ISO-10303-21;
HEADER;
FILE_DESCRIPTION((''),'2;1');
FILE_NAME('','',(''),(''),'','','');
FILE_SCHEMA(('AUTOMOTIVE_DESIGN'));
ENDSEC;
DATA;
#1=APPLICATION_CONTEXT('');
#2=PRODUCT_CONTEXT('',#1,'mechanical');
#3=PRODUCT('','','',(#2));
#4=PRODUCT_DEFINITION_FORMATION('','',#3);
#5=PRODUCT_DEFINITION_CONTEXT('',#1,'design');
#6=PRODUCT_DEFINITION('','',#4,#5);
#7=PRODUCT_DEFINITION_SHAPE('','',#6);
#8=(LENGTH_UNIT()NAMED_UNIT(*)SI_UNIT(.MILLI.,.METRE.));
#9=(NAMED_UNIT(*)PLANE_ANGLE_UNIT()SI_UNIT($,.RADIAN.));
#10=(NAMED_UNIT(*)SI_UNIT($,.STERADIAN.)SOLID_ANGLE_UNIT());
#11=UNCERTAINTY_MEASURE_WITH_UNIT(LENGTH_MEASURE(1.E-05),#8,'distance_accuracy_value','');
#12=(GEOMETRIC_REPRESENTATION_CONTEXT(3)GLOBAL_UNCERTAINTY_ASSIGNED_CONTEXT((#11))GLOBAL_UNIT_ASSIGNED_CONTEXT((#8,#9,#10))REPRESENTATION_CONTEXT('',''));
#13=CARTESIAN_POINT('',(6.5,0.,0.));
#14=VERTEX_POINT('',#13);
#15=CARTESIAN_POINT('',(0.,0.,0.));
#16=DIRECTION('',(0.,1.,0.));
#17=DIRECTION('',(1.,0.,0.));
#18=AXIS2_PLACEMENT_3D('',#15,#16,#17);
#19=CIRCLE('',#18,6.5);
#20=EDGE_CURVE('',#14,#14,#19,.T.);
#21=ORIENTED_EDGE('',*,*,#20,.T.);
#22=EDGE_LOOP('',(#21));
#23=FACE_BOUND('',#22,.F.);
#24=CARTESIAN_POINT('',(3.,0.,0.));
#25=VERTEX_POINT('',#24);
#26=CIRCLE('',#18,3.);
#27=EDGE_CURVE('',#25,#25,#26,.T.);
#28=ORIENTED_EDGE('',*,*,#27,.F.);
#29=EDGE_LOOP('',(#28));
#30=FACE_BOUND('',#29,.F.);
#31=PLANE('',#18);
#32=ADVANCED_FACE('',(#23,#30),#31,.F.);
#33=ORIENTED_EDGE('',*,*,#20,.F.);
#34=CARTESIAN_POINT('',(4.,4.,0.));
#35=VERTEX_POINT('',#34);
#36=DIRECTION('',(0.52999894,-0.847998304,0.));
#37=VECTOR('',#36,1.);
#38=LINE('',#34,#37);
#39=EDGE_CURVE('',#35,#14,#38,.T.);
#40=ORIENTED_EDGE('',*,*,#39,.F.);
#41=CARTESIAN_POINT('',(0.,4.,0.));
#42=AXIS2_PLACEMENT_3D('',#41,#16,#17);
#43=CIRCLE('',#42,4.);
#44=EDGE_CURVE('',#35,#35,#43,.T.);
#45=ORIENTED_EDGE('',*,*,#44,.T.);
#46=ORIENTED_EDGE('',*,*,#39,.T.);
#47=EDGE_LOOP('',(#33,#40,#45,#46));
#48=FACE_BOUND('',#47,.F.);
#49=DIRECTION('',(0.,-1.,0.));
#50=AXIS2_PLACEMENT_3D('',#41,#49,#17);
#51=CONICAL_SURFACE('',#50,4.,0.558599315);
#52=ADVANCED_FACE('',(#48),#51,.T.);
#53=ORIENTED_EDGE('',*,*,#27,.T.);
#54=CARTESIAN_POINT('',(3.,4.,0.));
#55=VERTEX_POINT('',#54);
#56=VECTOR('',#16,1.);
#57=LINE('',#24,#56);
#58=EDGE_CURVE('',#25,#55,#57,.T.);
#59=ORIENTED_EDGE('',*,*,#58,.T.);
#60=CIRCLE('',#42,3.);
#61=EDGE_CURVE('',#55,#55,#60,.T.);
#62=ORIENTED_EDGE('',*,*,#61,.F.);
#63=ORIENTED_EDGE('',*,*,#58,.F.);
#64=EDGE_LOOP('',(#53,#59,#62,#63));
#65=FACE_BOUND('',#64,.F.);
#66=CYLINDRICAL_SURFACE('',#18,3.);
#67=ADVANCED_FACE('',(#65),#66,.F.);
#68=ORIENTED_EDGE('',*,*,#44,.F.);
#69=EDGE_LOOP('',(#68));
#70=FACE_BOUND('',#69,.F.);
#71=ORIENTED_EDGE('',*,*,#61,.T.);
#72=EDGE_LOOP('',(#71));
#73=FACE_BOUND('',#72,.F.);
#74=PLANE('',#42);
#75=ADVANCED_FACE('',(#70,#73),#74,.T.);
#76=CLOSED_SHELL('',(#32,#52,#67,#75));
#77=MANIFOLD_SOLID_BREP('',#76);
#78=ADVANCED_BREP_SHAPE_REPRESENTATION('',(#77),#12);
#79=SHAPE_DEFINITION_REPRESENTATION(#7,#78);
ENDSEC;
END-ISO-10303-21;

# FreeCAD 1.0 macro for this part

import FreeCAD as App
import Part
import Sketcher
Q = App.Units.Quantity

doc = App.newDocument("Part")
body = doc.addObject("PartDesign::Body", "Body")

sketch1 = body.newObject("Sketcher::SketchObject", "Sketch")
sketch1.AttachmentSupport = (doc.getObject("XY_Plane"), [""])
sketch1.MapMode = "FlatFace"
sketch1.addGeometry([
    Part.LineSegment(App.Vector(3, 4, 0), App.Vector(3, 0, 0)),
    Part.LineSegment(App.Vector(3, 0, 0), App.Vector(6.5, 0, 0)),
    Part.LineSegment(App.Vector(6.5, 0, 0), App.Vector(4, 4, 0)),
    Part.LineSegment(App.Vector(4, 4, 0), App.Vector(3, 4, 0)),
], False)
sketch1.addConstraint([
    Sketcher.Constraint("Coincident", 0, 2, 1, 1),
    Sketcher.Constraint("Coincident", 1, 2, 2, 1),
    Sketcher.Constraint("Coincident", 2, 2, 3, 1),
    Sketcher.Constraint("Coincident", 3, 2, 0, 1),
    Sketcher.Constraint("Vertical", 0),
    Sketcher.Constraint("Horizontal", 1),
    Sketcher.Constraint("Horizontal", 3),
    Sketcher.Constraint("PointOnObject", 0, 2, -1),
    Sketcher.Constraint("DistanceX", 3, 2, 3, 1, Q("1 mm")),
    Sketcher.Constraint("DistanceY", 0, 2, 0, 1, Q("4 mm")),
    Sketcher.Constraint("DistanceX", 1, 1, 1, 2, Q("3.5 mm")),
    Sketcher.Constraint("DistanceX", -1, 1, 0, 2, Q("3 mm")),
])
revolution = body.newObject("PartDesign::Revolution", "Revolution")
revolution.Profile = sketch1
revolution.ReferenceAxis = (sketch1, ["V_Axis"])
revolution.Angle = 360

doc.recompute()
